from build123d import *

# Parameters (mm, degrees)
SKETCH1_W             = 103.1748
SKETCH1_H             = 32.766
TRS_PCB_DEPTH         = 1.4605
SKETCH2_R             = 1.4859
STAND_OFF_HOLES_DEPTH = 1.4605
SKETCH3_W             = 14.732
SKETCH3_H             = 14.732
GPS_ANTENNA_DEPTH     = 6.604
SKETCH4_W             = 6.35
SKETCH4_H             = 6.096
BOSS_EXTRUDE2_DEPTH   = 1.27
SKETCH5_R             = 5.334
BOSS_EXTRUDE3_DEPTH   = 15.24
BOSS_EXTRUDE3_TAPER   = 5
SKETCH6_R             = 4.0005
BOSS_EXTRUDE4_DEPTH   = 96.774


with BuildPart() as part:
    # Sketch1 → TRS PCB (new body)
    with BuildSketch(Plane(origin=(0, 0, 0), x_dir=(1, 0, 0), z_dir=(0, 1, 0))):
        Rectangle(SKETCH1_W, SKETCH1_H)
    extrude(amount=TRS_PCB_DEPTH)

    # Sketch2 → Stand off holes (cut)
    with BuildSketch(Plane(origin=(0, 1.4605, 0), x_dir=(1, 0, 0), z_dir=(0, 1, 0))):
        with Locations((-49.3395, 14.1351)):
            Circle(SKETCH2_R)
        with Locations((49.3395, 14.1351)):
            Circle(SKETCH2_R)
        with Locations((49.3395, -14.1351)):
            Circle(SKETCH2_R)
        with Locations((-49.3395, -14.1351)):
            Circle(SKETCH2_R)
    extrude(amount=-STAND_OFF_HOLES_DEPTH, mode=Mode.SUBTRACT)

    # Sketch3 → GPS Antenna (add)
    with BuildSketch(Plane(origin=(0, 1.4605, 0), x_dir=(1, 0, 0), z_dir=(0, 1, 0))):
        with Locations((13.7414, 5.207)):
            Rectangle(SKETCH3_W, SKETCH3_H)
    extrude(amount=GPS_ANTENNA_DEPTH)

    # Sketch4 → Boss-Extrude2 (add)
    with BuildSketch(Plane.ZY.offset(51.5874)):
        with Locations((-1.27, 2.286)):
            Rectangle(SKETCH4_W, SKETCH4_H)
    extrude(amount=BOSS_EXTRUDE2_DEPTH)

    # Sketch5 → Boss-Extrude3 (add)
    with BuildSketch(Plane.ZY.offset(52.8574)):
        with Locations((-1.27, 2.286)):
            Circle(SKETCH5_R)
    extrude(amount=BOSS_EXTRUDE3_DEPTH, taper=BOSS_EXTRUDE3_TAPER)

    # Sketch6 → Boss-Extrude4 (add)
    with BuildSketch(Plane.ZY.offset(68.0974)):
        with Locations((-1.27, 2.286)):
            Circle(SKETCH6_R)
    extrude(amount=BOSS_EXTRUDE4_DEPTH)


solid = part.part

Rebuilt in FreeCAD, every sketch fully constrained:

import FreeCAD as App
import Part
import Sketcher
from FreeCAD import Vector
Q = App.Units.Quantity

doc = App.newDocument("Part")
body = doc.addObject("PartDesign::Body", "Body")

sketch1 = body.newObject("Sketcher::SketchObject", "Sketch")
sketch1.AttachmentSupport = (doc.getObject("XZ_Plane"), [""])
sketch1.MapMode = "FlatFace"
sketch1.addGeometry([
    Part.LineSegment(Vector(-52, -16, 0), Vector(-52, 16, 0)),
    Part.LineSegment(Vector(-52, 16, 0), Vector(52, 16, 0)),
    Part.LineSegment(Vector(52, 16, 0), Vector(52, -16, 0)),
    Part.LineSegment(Vector(52, -16, 0), Vector(-52, -16, 0)),
], False)
sketch1.addConstraint([
    Sketcher.Constraint("Coincident", 0, 2, 1, 1),
    Sketcher.Constraint("Coincident", 1, 2, 2, 1),
    Sketcher.Constraint("Coincident", 2, 2, 3, 1),
    Sketcher.Constraint("Coincident", 3, 2, 0, 1),
    Sketcher.Constraint("Vertical", 0),
    Sketcher.Constraint("Horizontal", 1),
    Sketcher.Constraint("Vertical", 2),
    Sketcher.Constraint("Horizontal", 3),
    Sketcher.Constraint("Symmetric", 0, 2, 2, 2, -1, 1),
    Sketcher.Constraint("DistanceY", 0, 1, 0, 2, Q("1.29 in")),
    Sketcher.Constraint("DistanceX", 1, 1, 1, 2, Q("4.062 in")),
])
pad1 = body.newObject("PartDesign::Pad", "Pad")
pad1.Profile = sketch1
pad1.Length = Q("0.0575 in")
pad1.Reversed = True

sketch2 = body.newObject("Sketcher::SketchObject", "Sketch001")
sketch2.AttachmentSupport = (doc.getObject("XZ_Plane"), [""])
sketch2.MapMode = "FlatFace"
sketch2.AttachmentOffset = App.Placement(Vector(0, 0, -0.0575 * 25.4), App.Rotation())
sketch2.addGeometry([
    Part.Circle(Vector(-49.3, -14.1, 0), Vector(0, 0, 1), 1.5),
    Part.Circle(Vector(49.3, -14.1, 0), Vector(0, 0, 1), 1.5),
    Part.Circle(Vector(49.3, 14.1, 0), Vector(0, 0, 1), 1.5),
    Part.Circle(Vector(-49.3, 14.1, 0), Vector(0, 0, 1), 1.5),
], False)
sketch2.addConstraint([
    Sketcher.Constraint("Equal", 0, 1),
    Sketcher.Constraint("Equal", 1, 2),
    Sketcher.Constraint("Equal", 2, 3),
    Sketcher.Constraint("Symmetric", 0, 3, 2, 3, -1, 1),
    Sketcher.Constraint("Symmetric", 1, 3, 3, 3, -1, 1),
    Sketcher.Constraint("Symmetric", 0, 3, 1, 3, -2),
    Sketcher.Constraint("Diameter", 0, Q("0.117 in")),
    Sketcher.Constraint("DistanceX", 0, 3, 1, 3, Q("3.885 in")),
    Sketcher.Constraint("DistanceY", 1, 3, 2, 3, Q("1.113 in")),
])
pocket1 = body.newObject("PartDesign::Pocket", "Pocket")
pocket1.Profile = sketch2
pocket1.Length = Q("0.0575 in")
pocket1.Reversed = True

sketch3 = body.newObject("Sketcher::SketchObject", "Sketch002")
sketch3.AttachmentSupport = (doc.getObject("XZ_Plane"), [""])
sketch3.MapMode = "FlatFace"
sketch3.AttachmentOffset = App.Placement(Vector(0, 0, -0.0575 * 25.4), App.Rotation())
sketch3.addGeometry([
    Part.LineSegment(Vector(6, -13, 0), Vector(6, 2, 0)),
    Part.LineSegment(Vector(6, 2, 0), Vector(21, 2, 0)),
    Part.LineSegment(Vector(21, 2, 0), Vector(21, -13, 0)),
    Part.LineSegment(Vector(21, -13, 0), Vector(6, -13, 0)),
], False)
sketch3.addConstraint([
    Sketcher.Constraint("Coincident", 0, 2, 1, 1),
    Sketcher.Constraint("Coincident", 1, 2, 2, 1),
    Sketcher.Constraint("Coincident", 2, 2, 3, 1),
    Sketcher.Constraint("Coincident", 3, 2, 0, 1),
    Sketcher.Constraint("Vertical", 0),
    Sketcher.Constraint("Horizontal", 1),
    Sketcher.Constraint("Vertical", 2),
    Sketcher.Constraint("Horizontal", 3),
    Sketcher.Constraint("Equal", 3, 0),
    Sketcher.Constraint("DistanceX", 1, 1, 1, 2, Q("0.58 in")),
    Sketcher.Constraint("DistanceX", -1, 1, 0, 2, Q("0.251 in")),
    Sketcher.Constraint("DistanceY", -1, 1, 0, 2, Q("0.085 in")),
])
pad2 = body.newObject("PartDesign::Pad", "Pad001")
pad2.Profile = sketch3
pad2.Length = Q("0.26 in")
pad2.Reversed = True

sketch4 = body.newObject("Sketcher::SketchObject", "Sketch003")
sketch4.AttachmentSupport = (doc.getObject("YZ_Plane"), [""])
sketch4.MapMode = "FlatFace"
sketch4.AttachmentOffset = App.Placement(Vector(0, 0, -2.031 * 25.4), App.Rotation())
sketch4.addGeometry([
    Part.LineSegment(Vector(5, -4, 0), Vector(-1, -4, 0)),
    Part.LineSegment(Vector(-1, -4, 0), Vector(-1, 2, 0)),
    Part.LineSegment(Vector(-1, 2, 0), Vector(5, 2, 0)),
    Part.LineSegment(Vector(5, 2, 0), Vector(5, -4, 0)),
], False)
sketch4.addConstraint([
    Sketcher.Constraint("Coincident", 0, 2, 1, 1),
    Sketcher.Constraint("Coincident", 1, 2, 2, 1),
    Sketcher.Constraint("Coincident", 2, 2, 3, 1),
    Sketcher.Constraint("Coincident", 3, 2, 0, 1),
    Sketcher.Constraint("Horizontal", 0),
    Sketcher.Constraint("Vertical", 1),
    Sketcher.Constraint("Horizontal", 2),
    Sketcher.Constraint("Vertical", 3),
    Sketcher.Constraint("DistanceX", 0, 2, 0, 1, Q("0.24 in")),
    Sketcher.Constraint("DistanceY", 1, 1, 1, 2, Q("0.25 in")),
    Sketcher.Constraint("DistanceX", 0, 2, -1, 1, Q("0.03 in")),
    Sketcher.Constraint("DistanceY", 0, 2, -1, 1, Q("0.175 in")),
])
pad3 = body.newObject("PartDesign::Pad", "Pad002")
pad3.Profile = sketch4
pad3.Length = Q("0.05 in")
pad3.Reversed = True

sketch5 = body.newObject("Sketcher::SketchObject", "Sketch004")
sketch5.AttachmentSupport = (doc.getObject("YZ_Plane"), [""])
sketch5.MapMode = "FlatFace"
sketch5.AttachmentOffset = App.Placement(Vector(0, 0, -2.081 * 25.4), App.Rotation())
sketch5.addGeometry(Part.Circle(Vector(2, -1, 0), Vector(0, 0, 1), 5), False)
sketch5.addConstraint([
    Sketcher.Constraint("Diameter", 0, Q("0.42 in")),
    Sketcher.Constraint("DistanceX", -1, 1, 0, 3, Q("0.09 in")),
    Sketcher.Constraint("DistanceY", 0, 3, -1, 1, Q("0.05 in")),
])
pad4 = body.newObject("PartDesign::Pad", "Pad003")
pad4.Profile = sketch5
pad4.Length = Q("0.6 in")
pad4.Reversed = True
pad4.TaperAngle = -5

sketch6 = body.newObject("Sketcher::SketchObject", "Sketch005")
sketch6.AttachmentSupport = (doc.getObject("YZ_Plane"), [""])
sketch6.MapMode = "FlatFace"
sketch6.AttachmentOffset = App.Placement(Vector(0, 0, -2.681 * 25.4), App.Rotation())
sketch6.addGeometry(Part.Circle(Vector(2.3, -1.3, 0), Vector(0, 0, 1), 4), False)
sketch6.addConstraint([
    Sketcher.Constraint("Diameter", 0, Q("0.315 in")),
    Sketcher.Constraint("DistanceX", -1, 1, 0, 3, Q("0.09 in")),
    Sketcher.Constraint("DistanceY", 0, 3, -1, 1, Q("0.05 in")),
])
pad5 = body.newObject("PartDesign::Pad", "Pad004")
pad5.Profile = sketch6
pad5.Length = Q("3.81 in")
pad5.Reversed = True

doc.recompute()
